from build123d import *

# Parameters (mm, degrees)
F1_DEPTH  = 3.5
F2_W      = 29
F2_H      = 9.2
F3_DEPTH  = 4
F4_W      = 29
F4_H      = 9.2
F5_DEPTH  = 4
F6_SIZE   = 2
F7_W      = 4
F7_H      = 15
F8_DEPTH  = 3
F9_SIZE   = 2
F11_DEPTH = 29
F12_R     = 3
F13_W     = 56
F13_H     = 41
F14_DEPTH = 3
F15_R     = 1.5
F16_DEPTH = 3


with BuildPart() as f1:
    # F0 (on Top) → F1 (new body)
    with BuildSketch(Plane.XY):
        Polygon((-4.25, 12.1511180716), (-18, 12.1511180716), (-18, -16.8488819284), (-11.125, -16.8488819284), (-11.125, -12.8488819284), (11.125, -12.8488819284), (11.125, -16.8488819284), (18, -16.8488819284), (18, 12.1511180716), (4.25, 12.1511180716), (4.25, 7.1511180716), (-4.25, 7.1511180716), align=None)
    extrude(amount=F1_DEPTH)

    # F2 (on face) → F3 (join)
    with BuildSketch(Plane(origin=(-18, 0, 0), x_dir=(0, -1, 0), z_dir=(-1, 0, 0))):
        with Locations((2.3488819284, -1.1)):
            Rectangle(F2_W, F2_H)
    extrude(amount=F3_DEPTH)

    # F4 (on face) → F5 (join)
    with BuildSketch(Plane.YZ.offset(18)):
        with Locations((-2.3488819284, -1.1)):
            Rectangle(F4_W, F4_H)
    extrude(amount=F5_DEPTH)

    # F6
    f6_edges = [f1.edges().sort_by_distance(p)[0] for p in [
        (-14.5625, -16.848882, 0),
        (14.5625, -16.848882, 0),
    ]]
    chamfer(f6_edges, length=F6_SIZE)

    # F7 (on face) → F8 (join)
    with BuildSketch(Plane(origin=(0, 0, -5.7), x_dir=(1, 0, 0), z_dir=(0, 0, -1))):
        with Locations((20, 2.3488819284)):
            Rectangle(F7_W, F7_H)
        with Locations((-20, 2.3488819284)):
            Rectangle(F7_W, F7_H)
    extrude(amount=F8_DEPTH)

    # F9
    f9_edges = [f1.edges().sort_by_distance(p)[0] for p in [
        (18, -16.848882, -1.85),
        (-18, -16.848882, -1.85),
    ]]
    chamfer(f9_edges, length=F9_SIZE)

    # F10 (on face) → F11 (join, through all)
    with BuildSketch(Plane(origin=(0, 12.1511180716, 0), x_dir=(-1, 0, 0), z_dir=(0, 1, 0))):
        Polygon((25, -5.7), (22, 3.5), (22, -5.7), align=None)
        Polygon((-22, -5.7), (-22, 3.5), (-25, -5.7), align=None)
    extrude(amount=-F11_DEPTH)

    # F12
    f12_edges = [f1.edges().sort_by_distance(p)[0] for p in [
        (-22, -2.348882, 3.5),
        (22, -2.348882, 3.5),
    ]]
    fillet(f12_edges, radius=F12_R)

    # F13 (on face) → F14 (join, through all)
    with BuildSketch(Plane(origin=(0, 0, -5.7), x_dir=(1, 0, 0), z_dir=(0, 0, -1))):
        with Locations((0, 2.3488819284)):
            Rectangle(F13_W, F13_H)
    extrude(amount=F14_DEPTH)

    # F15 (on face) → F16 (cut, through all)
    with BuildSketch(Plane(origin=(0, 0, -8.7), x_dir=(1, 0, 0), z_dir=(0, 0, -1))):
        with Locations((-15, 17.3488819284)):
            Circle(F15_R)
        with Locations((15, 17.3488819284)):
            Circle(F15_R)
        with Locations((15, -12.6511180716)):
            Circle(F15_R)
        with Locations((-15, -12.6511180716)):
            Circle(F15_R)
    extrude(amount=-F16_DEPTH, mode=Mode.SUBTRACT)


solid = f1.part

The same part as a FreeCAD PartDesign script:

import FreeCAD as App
import Part
import Sketcher


def edges_at(feature, points):
    """Names of the edges that pass closest to the given points."""
    edges = feature.Shape.Edges
    near = lambda p: min(range(len(edges)), key=lambda i: edges[i].distToShape(Part.Vertex(*p))[0])
    return sorted({f"Edge{near(p) + 1}" for p in points})

doc = App.newDocument("Part")
body = doc.addObject("PartDesign::Body", "Body")

sketch1 = body.newObject("Sketcher::SketchObject", "Sketch")
sketch1.AttachmentSupport = (doc.getObject("XY_Plane"), [""])
sketch1.MapMode = "FlatFace"
sketch1.addGeometry([
    Part.LineSegment(App.Vector(-4.2, 12.2, 0), App.Vector(-18, 12.2, 0)),
    Part.LineSegment(App.Vector(-18, 12.2, 0), App.Vector(-18, -16.8, 0)),
    Part.LineSegment(App.Vector(-18, -16.8, 0), App.Vector(-11.1, -16.8, 0)),
    Part.LineSegment(App.Vector(-11.1, -16.8, 0), App.Vector(-11.1, -12.8, 0)),
    Part.LineSegment(App.Vector(-11.1, -12.8, 0), App.Vector(11.1, -12.8, 0)),
    Part.LineSegment(App.Vector(11.1, -12.8, 0), App.Vector(11.1, -16.8, 0)),
    Part.LineSegment(App.Vector(11.1, -16.8, 0), App.Vector(18, -16.8, 0)),
    Part.LineSegment(App.Vector(18, -16.8, 0), App.Vector(18, 12.2, 0)),
    Part.LineSegment(App.Vector(18, 12.2, 0), App.Vector(4.2, 12.2, 0)),
    Part.LineSegment(App.Vector(4.2, 12.2, 0), App.Vector(4.2, 7.2, 0)),
    Part.LineSegment(App.Vector(4.2, 7.2, 0), App.Vector(-4.2, 7.2, 0)),
    Part.LineSegment(App.Vector(-4.2, 7.2, 0), App.Vector(-4.2, 12.2, 0)),
], False)
sketch1.addConstraint([
    Sketcher.Constraint("Coincident", 0, 2, 1, 1),
    Sketcher.Constraint("Coincident", 1, 2, 2, 1),
    Sketcher.Constraint("Coincident", 2, 2, 3, 1),
    Sketcher.Constraint("Coincident", 3, 2, 4, 1),
    Sketcher.Constraint("Coincident", 4, 2, 5, 1),
    Sketcher.Constraint("Coincident", 5, 2, 6, 1),
    Sketcher.Constraint("Coincident", 6, 2, 7, 1),
    Sketcher.Constraint("Coincident", 7, 2, 8, 1),
    Sketcher.Constraint("Coincident", 8, 2, 9, 1),
    Sketcher.Constraint("Coincident", 9, 2, 10, 1),
    Sketcher.Constraint("Coincident", 10, 2, 11, 1),
    Sketcher.Constraint("Coincident", 11, 2, 0, 1),
    Sketcher.Constraint("Horizontal", 0),
    Sketcher.Constraint("Vertical", 1),
    Sketcher.Constraint("Horizontal", 2),
    Sketcher.Constraint("Vertical", 3),
    Sketcher.Constraint("Horizontal", 4),
    Sketcher.Constraint("Vertical", 5),
    Sketcher.Constraint("Horizontal", 6),
    Sketcher.Constraint("Vertical", 7),
    Sketcher.Constraint("Horizontal", 8),
    Sketcher.Constraint("Vertical", 9),
    Sketcher.Constraint("Horizontal", 10),
    Sketcher.Constraint("Vertical", 11),
    Sketcher.Constraint("Symmetric", 2, 2, 5, 2, -2),
    Sketcher.Constraint("Symmetric", 0, 2, 7, 2, -2),
    Sketcher.Constraint("Equal", 0, 8),
    Sketcher.Constraint("DistanceY", 1, 2, 1, 1, 29.0),
    Sketcher.Constraint("DistanceY", 3, 1, 3, 2, 4.0),
    Sketcher.Constraint("DistanceY", 9, 2, 9, 1, 5.0),
    Sketcher.Constraint("DistanceX", 10, 2, 10, 1, 8.5),
    Sketcher.Constraint("DistanceX", 0, 2, -1, 1, 18.0),
    Sketcher.Constraint("DistanceX", 4, 1, 4, 2, 22.25),
    Sketcher.Constraint("DistanceY", -1, 1, 0, 2, 12.151118),
])
pad1 = body.newObject("PartDesign::Pad", "Pad")
pad1.Profile = sketch1
pad1.Length = 3.5

sketch2 = body.newObject("Sketcher::SketchObject", "Sketch001")
sketch2.AttachmentSupport = (doc.getObject("YZ_Plane"), [""])
sketch2.MapMode = "FlatFace"
sketch2.AttachmentOffset = App.Placement(App.Vector(0, 0, -18), App.Rotation())
sketch2.addGeometry([
    Part.LineSegment(App.Vector(12, 4, 0), App.Vector(12, -6, 0)),
    Part.LineSegment(App.Vector(12, -6, 0), App.Vector(-17, -6, 0)),
    Part.LineSegment(App.Vector(-17, -6, 0), App.Vector(-17, 4, 0)),
    Part.LineSegment(App.Vector(-17, 4, 0), App.Vector(12, 4, 0)),
], False)
sketch2.addConstraint([
    Sketcher.Constraint("Coincident", 0, 2, 1, 1),
    Sketcher.Constraint("Coincident", 1, 2, 2, 1),
    Sketcher.Constraint("Coincident", 2, 2, 3, 1),
    Sketcher.Constraint("Coincident", 3, 2, 0, 1),
    Sketcher.Constraint("Vertical", 0),
    Sketcher.Constraint("Horizontal", 1),
    Sketcher.Constraint("Vertical", 2),
    Sketcher.Constraint("Horizontal", 3),
    Sketcher.Constraint("DistanceX", 1, 2, 1, 1, 29.0),
    Sketcher.Constraint("DistanceY", 0, 2, 0, 1, 9.2),
    Sketcher.Constraint("DistanceY", 0, 2, -1, 1, 5.7),
    Sketcher.Constraint("DistanceX", -1, 1, 0, 2, 12.151118),
])
pad2 = body.newObject("PartDesign::Pad", "Pad001")
pad2.Profile = sketch2
pad2.Length = 4
pad2.Reversed = True

sketch3 = body.newObject("Sketcher::SketchObject", "Sketch002")
sketch3.AttachmentSupport = (doc.getObject("YZ_Plane"), [""])
sketch3.MapMode = "FlatFace"
sketch3.AttachmentOffset = App.Placement(App.Vector(0, 0, 18), App.Rotation())
sketch3.addGeometry([
    Part.LineSegment(App.Vector(-17, 4, 0), App.Vector(-17, -6, 0)),
    Part.LineSegment(App.Vector(-17, -6, 0), App.Vector(12, -6, 0)),
    Part.LineSegment(App.Vector(12, -6, 0), App.Vector(12, 4, 0)),
    Part.LineSegment(App.Vector(12, 4, 0), App.Vector(-17, 4, 0)),
], False)
sketch3.addConstraint([
    Sketcher.Constraint("Coincident", 0, 2, 1, 1),
    Sketcher.Constraint("Coincident", 1, 2, 2, 1),
    Sketcher.Constraint("Coincident", 2, 2, 3, 1),
    Sketcher.Constraint("Coincident", 3, 2, 0, 1),
    Sketcher.Constraint("Vertical", 0),
    Sketcher.Constraint("Horizontal", 1),
    Sketcher.Constraint("Vertical", 2),
    Sketcher.Constraint("Horizontal", 3),
    Sketcher.Constraint("DistanceX", 1, 1, 1, 2, 29.0),
    Sketcher.Constraint("DistanceY", 0, 2, 0, 1, 9.2),
    Sketcher.Constraint("DistanceY", 0, 2, -1, 1, 5.7),
    Sketcher.Constraint("DistanceX", 0, 2, -1, 1, 16.848882),
])
pad3 = body.newObject("PartDesign::Pad", "Pad002")
pad3.Profile = sketch3
pad3.Length = 4
doc.recompute()

chamfer = body.newObject("PartDesign::Chamfer", "Chamfer")
chamfer.Base = (pad3, edges_at(pad3, [(-14.562, -16.849, 0), (14.562, -16.849, 0)]))
chamfer.Size = 2

sketch4 = body.newObject("Sketcher::SketchObject", "Sketch003")
sketch4.AttachmentSupport = (doc.getObject("XY_Plane"), [""])
sketch4.MapMode = "FlatFace"
sketch4.AttachmentOffset = App.Placement(App.Vector(0, 0, -5.7), App.Rotation())
sketch4.addGeometry([
    Part.LineSegment(App.Vector(18, -9.8, 0), App.Vector(18, 5.2, 0)),
    Part.LineSegment(App.Vector(18, 5.2, 0), App.Vector(22, 5.2, 0)),
    Part.LineSegment(App.Vector(22, 5.2, 0), App.Vector(22, -9.8, 0)),
    Part.LineSegment(App.Vector(22, -9.8, 0), App.Vector(18, -9.8, 0)),
    Part.LineSegment(App.Vector(-22, -9.8, 0), App.Vector(-22, 5.2, 0)),
    Part.LineSegment(App.Vector(-22, 5.2, 0), App.Vector(-18, 5.2, 0)),
    Part.LineSegment(App.Vector(-18, 5.2, 0), App.Vector(-18, -9.8, 0)),
    Part.LineSegment(App.Vector(-18, -9.8, 0), App.Vector(-22, -9.8, 0)),
], False)
sketch4.addConstraint([
    Sketcher.Constraint("Coincident", 0, 2, 1, 1),
    Sketcher.Constraint("Coincident", 1, 2, 2, 1),
    Sketcher.Constraint("Coincident", 2, 2, 3, 1),
    Sketcher.Constraint("Coincident", 3, 2, 0, 1),
    Sketcher.Constraint("Coincident", 4, 2, 5, 1),
    Sketcher.Constraint("Coincident", 5, 2, 6, 1),
    Sketcher.Constraint("Coincident", 6, 2, 7, 1),
    Sketcher.Constraint("Coincident", 7, 2, 4, 1),
    Sketcher.Constraint("Vertical", 0),
    Sketcher.Constraint("Horizontal", 1),
    Sketcher.Constraint("Vertical", 2),
    Sketcher.Constraint("Horizontal", 3),
    Sketcher.Constraint("Vertical", 4),
    Sketcher.Constraint("Horizontal", 5),
    Sketcher.Constraint("Vertical", 6),
    Sketcher.Constraint("Horizontal", 7),
    Sketcher.Constraint("Symmetric", 1, 2, 4, 2, -2),
    Sketcher.Constraint("Symmetric", 3, 2, 6, 2, -2),
    Sketcher.Constraint("DistanceX", 1, 1, 1, 2, 4.0),
    Sketcher.Constraint("DistanceY", 0, 1, 0, 2, 15.0),
    Sketcher.Constraint("DistanceX", -1, 1, 0, 2, 18.0),
    Sketcher.Constraint("DistanceY", -1, 1, 0, 2, 5.151118),
])
pad4 = body.newObject("PartDesign::Pad", "Pad003")
pad4.Profile = sketch4
pad4.Length = 3
pad4.Reversed = True
doc.recompute()

chamfer2 = body.newObject("PartDesign::Chamfer", "Chamfer001")
chamfer2.Base = (pad4, edges_at(pad4, [(18, -16.849, -1.85), (-18, -16.849, -1.85)]))
chamfer2.Size = 2

sketch5 = body.newObject("Sketcher::SketchObject", "Sketch004")
sketch5.AttachmentSupport = (doc.getObject("XZ_Plane"), [""])
sketch5.MapMode = "FlatFace"
sketch5.AttachmentOffset = App.Placement(App.Vector(0, 0, -12.151118), App.Rotation())
sketch5.addGeometry([
    Part.LineSegment(App.Vector(-25, -5.7, 0), App.Vector(-22, 3.5, 0)),
    Part.LineSegment(App.Vector(-22, 3.5, 0), App.Vector(-22, -5.7, 0)),
    Part.LineSegment(App.Vector(-22, -5.7, 0), App.Vector(-25, -5.7, 0)),
    Part.LineSegment(App.Vector(22, -5.7, 0), App.Vector(22, 3.5, 0)),
    Part.LineSegment(App.Vector(22, 3.5, 0), App.Vector(25, -5.7, 0)),
    Part.LineSegment(App.Vector(25, -5.7, 0), App.Vector(22, -5.7, 0)),
], False)
sketch5.addConstraint([
    Sketcher.Constraint("Coincident", 0, 2, 1, 1),
    Sketcher.Constraint("Coincident", 1, 2, 2, 1),
    Sketcher.Constraint("Coincident", 2, 2, 0, 1),
    Sketcher.Constraint("Coincident", 3, 2, 4, 1),
    Sketcher.Constraint("Coincident", 4, 2, 5, 1),
    Sketcher.Constraint("Coincident", 5, 2, 3, 1),
    Sketcher.Constraint("Vertical", 1),
    Sketcher.Constraint("Horizontal", 2),
    Sketcher.Constraint("Vertical", 3),
    Sketcher.Constraint("Horizontal", 5),
    Sketcher.Constraint("Symmetric", 0, 2, 3, 2, -2),
    Sketcher.Constraint("Symmetric", 2, 2, 4, 2, -2),
    Sketcher.Constraint("DistanceX", 2, 2, 2, 1, 3.0),
    Sketcher.Constraint("DistanceY", 1, 2, 1, 1, 9.2),
    Sketcher.Constraint("DistanceX", 0, 2, -1, 1, 22.0),
    Sketcher.Constraint("DistanceY", -1, 1, 0, 2, 3.5),
])
pad5 = body.newObject("PartDesign::Pad", "Pad004")
pad5.Profile = sketch5
pad5.Length = 29
doc.recompute()

fillet = body.newObject("PartDesign::Fillet", "Fillet")
fillet.Base = (pad5, edges_at(pad5, [(-22, -2.349, 3.5), (22, -2.349, 3.5)]))
fillet.Radius = 3

sketch6 = body.newObject("Sketcher::SketchObject", "Sketch005")
sketch6.AttachmentSupport = (doc.getObject("XY_Plane"), [""])
sketch6.MapMode = "FlatFace"
sketch6.AttachmentOffset = App.Placement(App.Vector(0, 0, -5.7), App.Rotation())
sketch6.addGeometry([
    Part.LineSegment(App.Vector(-28, -23, 0), App.Vector(-28, 18, 0)),
    Part.LineSegment(App.Vector(-28, 18, 0), App.Vector(28, 18, 0)),
    Part.LineSegment(App.Vector(28, 18, 0), App.Vector(28, -23, 0)),
    Part.LineSegment(App.Vector(28, -23, 0), App.Vector(-28, -23, 0)),
], False)
sketch6.addConstraint([
    Sketcher.Constraint("Coincident", 0, 2, 1, 1),
    Sketcher.Constraint("Coincident", 1, 2, 2, 1),
    Sketcher.Constraint("Coincident", 2, 2, 3, 1),
    Sketcher.Constraint("Coincident", 3, 2, 0, 1),
    Sketcher.Constraint("Vertical", 0),
    Sketcher.Constraint("Horizontal", 1),
    Sketcher.Constraint("Vertical", 2),
    Sketcher.Constraint("Horizontal", 3),
    Sketcher.Constraint("DistanceX", 1, 1, 1, 2, 56.0),
    Sketcher.Constraint("DistanceY", 0, 1, 0, 2, 41.0),
    Sketcher.Constraint("DistanceX", 0, 2, -1, 1, 28.0),
    Sketcher.Constraint("DistanceY", -1, 1, 0, 2, 18.151118),
])
pad6 = body.newObject("PartDesign::Pad", "Pad005")
pad6.Profile = sketch6
pad6.Length = 3
pad6.Reversed = True

sketch7 = body.newObject("Sketcher::SketchObject", "Sketch006")
sketch7.AttachmentSupport = (doc.getObject("XY_Plane"), [""])
sketch7.MapMode = "FlatFace"
sketch7.AttachmentOffset = App.Placement(App.Vector(0, 0, -8.7), App.Rotation())
sketch7.addGeometry([
    Part.Circle(App.Vector(-15, -17.3, 0), App.Vector(0, 0, 1), 1.5),
    Part.Circle(App.Vector(15, -17.3, 0), App.Vector(0, 0, 1), 1.5),
    Part.Circle(App.Vector(15, 12.7, 0), App.Vector(0, 0, 1), 1.5),
    Part.Circle(App.Vector(-15, 12.7, 0), App.Vector(0, 0, 1), 1.5),
], False)
sketch7.addConstraint([
    Sketcher.Constraint("Equal", 0, 1),
    Sketcher.Constraint("Equal", 1, 2),
    Sketcher.Constraint("Equal", 2, 3),
    Sketcher.Constraint("Symmetric", 0, 3, 1, 3, -2),
    Sketcher.Constraint("Symmetric", 2, 3, 3, 3, -2),
    Sketcher.Constraint("Vertical", 1, 3, 2, 3),
    Sketcher.Constraint("Diameter", 0, 3.0),
    Sketcher.Constraint("DistanceX", 0, 3, -1, 1, 15.0),
    Sketcher.Constraint("DistanceY", 1, 3, 2, 3, 30.0),
    Sketcher.Constraint("DistanceY", 0, 3, -1, 1, 17.348882),
])
pocket1 = body.newObject("PartDesign::Pocket", "Pocket")
pocket1.Profile = sketch7
pocket1.Length = 3
pocket1.Reversed = True

doc.recompute()
